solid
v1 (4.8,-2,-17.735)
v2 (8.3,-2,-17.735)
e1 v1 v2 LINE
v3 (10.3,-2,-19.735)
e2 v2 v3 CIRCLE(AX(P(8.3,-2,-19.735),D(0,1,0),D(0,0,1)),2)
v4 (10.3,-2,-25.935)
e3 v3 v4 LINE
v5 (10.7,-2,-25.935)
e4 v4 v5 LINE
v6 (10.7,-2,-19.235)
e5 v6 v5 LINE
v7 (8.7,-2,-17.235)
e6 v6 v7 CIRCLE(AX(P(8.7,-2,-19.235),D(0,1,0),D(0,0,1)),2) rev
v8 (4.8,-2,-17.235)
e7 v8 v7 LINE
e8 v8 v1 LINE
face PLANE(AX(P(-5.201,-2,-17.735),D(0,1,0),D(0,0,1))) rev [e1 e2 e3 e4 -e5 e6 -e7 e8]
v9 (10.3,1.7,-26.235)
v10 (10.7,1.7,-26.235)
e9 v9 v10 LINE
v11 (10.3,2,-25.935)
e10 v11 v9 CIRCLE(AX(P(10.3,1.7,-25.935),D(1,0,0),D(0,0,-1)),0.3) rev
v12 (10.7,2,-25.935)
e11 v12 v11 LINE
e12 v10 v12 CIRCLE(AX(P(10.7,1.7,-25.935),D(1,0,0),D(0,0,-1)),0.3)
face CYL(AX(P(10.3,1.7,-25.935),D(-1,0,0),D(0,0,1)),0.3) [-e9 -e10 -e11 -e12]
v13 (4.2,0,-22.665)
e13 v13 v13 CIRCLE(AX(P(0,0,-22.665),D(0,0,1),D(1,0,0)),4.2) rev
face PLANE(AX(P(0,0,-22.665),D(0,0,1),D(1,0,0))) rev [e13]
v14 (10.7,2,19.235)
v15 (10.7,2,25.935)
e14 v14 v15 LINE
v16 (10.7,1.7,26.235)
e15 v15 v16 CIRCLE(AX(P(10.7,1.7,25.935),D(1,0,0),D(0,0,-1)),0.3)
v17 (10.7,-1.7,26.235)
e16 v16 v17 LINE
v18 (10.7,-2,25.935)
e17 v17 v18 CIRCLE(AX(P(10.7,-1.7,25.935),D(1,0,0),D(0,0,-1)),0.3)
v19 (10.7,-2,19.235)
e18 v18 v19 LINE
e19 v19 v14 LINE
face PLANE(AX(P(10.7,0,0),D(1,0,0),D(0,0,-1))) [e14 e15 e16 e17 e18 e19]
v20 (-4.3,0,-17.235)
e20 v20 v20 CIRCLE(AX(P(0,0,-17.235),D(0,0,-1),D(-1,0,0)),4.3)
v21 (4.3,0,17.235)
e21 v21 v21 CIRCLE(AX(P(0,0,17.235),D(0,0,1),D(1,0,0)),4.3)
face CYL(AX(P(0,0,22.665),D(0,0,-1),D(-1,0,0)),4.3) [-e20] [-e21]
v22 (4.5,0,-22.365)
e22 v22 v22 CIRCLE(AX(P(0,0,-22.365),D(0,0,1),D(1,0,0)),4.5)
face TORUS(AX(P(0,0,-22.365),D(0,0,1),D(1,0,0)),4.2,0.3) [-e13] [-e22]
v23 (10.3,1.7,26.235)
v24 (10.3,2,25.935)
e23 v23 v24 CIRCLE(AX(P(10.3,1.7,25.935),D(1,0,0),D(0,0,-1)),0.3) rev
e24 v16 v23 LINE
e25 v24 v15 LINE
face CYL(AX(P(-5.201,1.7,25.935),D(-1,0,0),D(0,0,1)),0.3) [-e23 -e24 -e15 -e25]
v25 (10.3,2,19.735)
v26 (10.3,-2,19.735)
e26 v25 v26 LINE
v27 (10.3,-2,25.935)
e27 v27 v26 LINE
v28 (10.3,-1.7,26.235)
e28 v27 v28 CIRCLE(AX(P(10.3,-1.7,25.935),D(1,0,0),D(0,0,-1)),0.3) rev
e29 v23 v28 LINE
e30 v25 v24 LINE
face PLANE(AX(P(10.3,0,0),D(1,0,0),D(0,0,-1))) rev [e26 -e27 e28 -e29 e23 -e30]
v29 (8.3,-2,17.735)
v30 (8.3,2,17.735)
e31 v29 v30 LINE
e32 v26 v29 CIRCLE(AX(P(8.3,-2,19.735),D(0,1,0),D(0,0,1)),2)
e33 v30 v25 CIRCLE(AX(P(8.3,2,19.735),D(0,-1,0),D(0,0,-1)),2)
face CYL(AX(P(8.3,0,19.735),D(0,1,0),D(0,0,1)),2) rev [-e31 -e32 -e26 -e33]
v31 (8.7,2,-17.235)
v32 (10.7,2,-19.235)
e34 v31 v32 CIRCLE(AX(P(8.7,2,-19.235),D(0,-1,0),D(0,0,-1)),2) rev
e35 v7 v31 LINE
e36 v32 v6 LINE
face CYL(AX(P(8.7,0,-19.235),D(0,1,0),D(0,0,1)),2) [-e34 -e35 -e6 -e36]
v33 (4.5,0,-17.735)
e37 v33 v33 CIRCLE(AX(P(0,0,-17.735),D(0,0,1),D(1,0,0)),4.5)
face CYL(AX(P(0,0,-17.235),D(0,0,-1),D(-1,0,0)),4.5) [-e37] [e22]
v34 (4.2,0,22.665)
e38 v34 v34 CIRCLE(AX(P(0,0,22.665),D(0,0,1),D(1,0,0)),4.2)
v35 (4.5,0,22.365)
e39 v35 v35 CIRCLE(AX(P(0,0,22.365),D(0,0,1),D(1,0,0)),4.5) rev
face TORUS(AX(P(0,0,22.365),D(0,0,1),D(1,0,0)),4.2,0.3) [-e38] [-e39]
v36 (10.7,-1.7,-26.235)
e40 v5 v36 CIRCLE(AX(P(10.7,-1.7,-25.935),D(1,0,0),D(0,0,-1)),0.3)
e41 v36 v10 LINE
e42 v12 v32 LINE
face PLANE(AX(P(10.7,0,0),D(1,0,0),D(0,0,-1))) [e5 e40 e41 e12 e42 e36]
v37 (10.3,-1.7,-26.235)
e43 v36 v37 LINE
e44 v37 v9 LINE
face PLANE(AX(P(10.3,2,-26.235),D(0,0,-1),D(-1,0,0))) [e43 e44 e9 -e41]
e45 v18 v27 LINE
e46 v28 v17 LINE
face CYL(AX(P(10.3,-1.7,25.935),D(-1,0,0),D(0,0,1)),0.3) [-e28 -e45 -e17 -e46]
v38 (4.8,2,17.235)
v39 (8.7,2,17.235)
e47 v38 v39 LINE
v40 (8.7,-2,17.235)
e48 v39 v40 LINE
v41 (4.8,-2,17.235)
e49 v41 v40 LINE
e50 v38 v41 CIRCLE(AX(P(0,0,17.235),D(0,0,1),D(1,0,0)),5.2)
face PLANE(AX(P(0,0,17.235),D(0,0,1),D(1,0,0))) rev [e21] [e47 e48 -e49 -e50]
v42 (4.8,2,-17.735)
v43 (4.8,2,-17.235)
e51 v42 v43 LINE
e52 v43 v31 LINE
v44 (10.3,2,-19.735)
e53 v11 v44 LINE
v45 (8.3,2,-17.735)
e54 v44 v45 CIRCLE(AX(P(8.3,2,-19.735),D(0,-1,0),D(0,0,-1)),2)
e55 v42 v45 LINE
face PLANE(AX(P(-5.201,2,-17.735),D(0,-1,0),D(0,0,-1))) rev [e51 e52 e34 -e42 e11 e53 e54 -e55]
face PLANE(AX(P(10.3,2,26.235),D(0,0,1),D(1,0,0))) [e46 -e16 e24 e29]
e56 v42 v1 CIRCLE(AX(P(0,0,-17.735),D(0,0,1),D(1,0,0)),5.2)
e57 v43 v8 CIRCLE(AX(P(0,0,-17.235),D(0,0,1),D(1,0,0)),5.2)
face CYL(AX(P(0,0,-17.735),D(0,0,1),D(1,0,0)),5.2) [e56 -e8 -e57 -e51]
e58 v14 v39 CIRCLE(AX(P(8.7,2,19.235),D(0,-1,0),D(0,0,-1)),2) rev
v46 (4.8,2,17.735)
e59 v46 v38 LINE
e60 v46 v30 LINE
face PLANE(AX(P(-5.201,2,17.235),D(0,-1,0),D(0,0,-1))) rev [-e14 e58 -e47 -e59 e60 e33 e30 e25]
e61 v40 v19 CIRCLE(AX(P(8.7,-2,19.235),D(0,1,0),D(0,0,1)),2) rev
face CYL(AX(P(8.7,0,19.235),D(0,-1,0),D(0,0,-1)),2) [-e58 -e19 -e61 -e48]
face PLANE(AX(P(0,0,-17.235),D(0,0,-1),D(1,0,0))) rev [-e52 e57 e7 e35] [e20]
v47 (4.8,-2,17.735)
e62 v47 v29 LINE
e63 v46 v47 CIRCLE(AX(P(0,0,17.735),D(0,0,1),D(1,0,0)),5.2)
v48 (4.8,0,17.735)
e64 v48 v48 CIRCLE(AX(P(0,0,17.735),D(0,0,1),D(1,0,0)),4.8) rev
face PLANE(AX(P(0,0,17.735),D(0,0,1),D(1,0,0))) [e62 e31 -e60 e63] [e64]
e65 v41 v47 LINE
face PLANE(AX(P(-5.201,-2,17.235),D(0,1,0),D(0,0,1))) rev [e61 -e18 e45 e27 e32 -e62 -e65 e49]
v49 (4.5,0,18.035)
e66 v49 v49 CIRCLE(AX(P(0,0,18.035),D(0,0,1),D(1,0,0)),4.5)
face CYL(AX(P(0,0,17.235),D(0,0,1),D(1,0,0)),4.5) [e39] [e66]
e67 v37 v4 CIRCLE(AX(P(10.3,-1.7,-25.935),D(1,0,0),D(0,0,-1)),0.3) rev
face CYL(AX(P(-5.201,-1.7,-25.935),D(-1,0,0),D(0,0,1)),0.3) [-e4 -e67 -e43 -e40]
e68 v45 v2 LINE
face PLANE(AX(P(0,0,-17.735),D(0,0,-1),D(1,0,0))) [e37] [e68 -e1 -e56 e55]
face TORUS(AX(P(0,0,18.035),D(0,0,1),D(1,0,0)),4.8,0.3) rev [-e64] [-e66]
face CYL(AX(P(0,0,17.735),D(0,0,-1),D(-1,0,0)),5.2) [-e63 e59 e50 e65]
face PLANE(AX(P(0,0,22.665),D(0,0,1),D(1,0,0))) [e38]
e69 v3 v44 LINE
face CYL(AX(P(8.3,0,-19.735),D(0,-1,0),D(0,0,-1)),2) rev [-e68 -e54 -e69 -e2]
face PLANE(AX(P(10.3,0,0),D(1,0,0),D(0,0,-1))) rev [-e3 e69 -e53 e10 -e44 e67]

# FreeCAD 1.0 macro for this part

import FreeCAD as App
import Part
import Sketcher
from FreeCAD import Vector
Q = App.Units.Quantity


def edges_at(feature, points):
    """Names of the edges that pass closest to the given points."""
    edges = feature.Shape.Edges
    near = lambda p: min(range(len(edges)), key=lambda i: edges[i].distToShape(Part.Vertex(*p))[0])
    return sorted({f"Edge{near(p) + 1}" for p in points})


def add_polygon(sketch, points):
    """Adds a closed chain of lines whose ends are joined by coincident constraints."""
    first, n = sketch.GeometryCount, len(points)
    for a, b in zip(points, points[1:] + points[:1]):
        sketch.addGeometry(Part.LineSegment(App.Vector(*a, 0), App.Vector(*b, 0)), False)
    for i in range(n):
        sketch.addConstraint(Sketcher.Constraint("Coincident", first + i, 2, first + (i + 1) % n, 1))

doc = App.newDocument("Part")
params = doc.addObject("Spreadsheet::Sheet", "Params")
for row, (alias, value) in enumerate([
    ("sketch1_diameter", "8.6 mm"),
    ("pad1_length", "45.33 mm"),
    ("sketch2_diameter", "9 mm"),
    ("sketch2_diameter2", "8.6 mm"),
    ("pad2_length", "5.43 mm"),
    ("sketch3_diameter", "9 mm"),
    ("sketch3_diameter2", "10.4 mm"),
    ("pad3_length", "0.5 mm"),
    ("sketch4_width", "4 mm"),
    ("sketch4_height", "9 mm"),
    ("pad4_length", "0.4 mm"),
    ("sketch5_width", "4 mm"),
    ("sketch5_height", "0.5 mm"),
    ("pad5_length", "5.5 mm"),
    ("sketch6_width", "4 mm"),
    ("sketch6_height", "9 mm"),
    ("pad6_length", "0.4 mm"),
    ("sketch7_width", "4 mm"),
    ("sketch7_height", "0.5 mm"),
    ("pad7_length", "5.5 mm"),
    ("fillet_radius", "2 mm"),
    ("fillet2_radius", "0.3 mm"),
], start=1):
    params.set(f"A{row}", alias)
    params.set(f"B{row}", "=" + value)
    params.setAlias(f"B{row}", alias)

body = doc.addObject("PartDesign::Body", "Body")

# Sketch on XY plane
sketch1 = doc.addObject("Sketcher::SketchObject", "Sketch")
body.addObject(sketch1)
sketch1.AttachmentSupport = (doc.XY_Plane, [""])
sketch1.MapMode = "FlatFace"
sketch1.addGeometry(Part.Circle(Vector(0, 0, 0), Vector(0, 0, 1), 4.3), False)
sketch1.addConstraint([
    Sketcher.Constraint("Coincident", 0, 3, -1, 1),
    Sketcher.Constraint("Diameter", 0, Q("8.6 mm")),
])
sketch1.setExpression("Constraints[1]", "Params.sketch1_diameter")
pad1 = doc.addObject("PartDesign::Pad", "Pad")
body.addObject(pad1)
pad1.Profile = sketch1
pad1.setExpression("Length", "Params.pad1_length")
pad1.Midplane = True

# Sketch on XY plane
sketch2 = doc.addObject("Sketcher::SketchObject", "Sketch001")
body.addObject(sketch2)
sketch2.AttachmentSupport = (doc.XY_Plane, [""])
sketch2.MapMode = "FlatFace"
sketch2.AttachmentOffset = App.Placement(Vector(0, 0, 22.665), App.Rotation())
sketch2.addGeometry([
    Part.Circle(Vector(0, 0, 0), Vector(0, 0, 1), 4.5),
    Part.Circle(Vector(0, 0, 0), Vector(0, 0, 1), 4.3),
], False)
sketch2.addConstraint([
    Sketcher.Constraint("Coincident", 0, 3, -1, 1),
    Sketcher.Constraint("Coincident", 1, 3, -1, 1),
    Sketcher.Constraint("Diameter", 0, Q("9 mm")),
    Sketcher.Constraint("Diameter", 1, Q("8.6 mm")),
])
sketch2.setExpression("Constraints[2]", "Params.sketch2_diameter")
sketch2.setExpression("Constraints[3]", "Params.sketch2_diameter2")
pad2 = doc.addObject("PartDesign::Pad", "Pad001")
body.addObject(pad2)
pad2.Profile = sketch2
pad2.setExpression("Length", "Params.pad2_length")
pad2.Reversed = True

# Sketch on XY plane
sketch3 = doc.addObject("Sketcher::SketchObject", "Sketch002")
body.addObject(sketch3)
sketch3.AttachmentSupport = (doc.XY_Plane, [""])
sketch3.MapMode = "FlatFace"
sketch3.AttachmentOffset = App.Placement(Vector(0, 0, 17.235), App.Rotation())
sketch3.addGeometry([
    Part.Circle(Vector(0, 0, 0), Vector(0, 0, 1), 5.2),
    Part.Circle(Vector(0, 0, 0), Vector(0, 0, 1), 4.5),
], False)
sketch3.addConstraint([
    Sketcher.Constraint("Coincident", 0, 3, -1, 1),
    Sketcher.Constraint("Coincident", 1, 3, -1, 1),
    Sketcher.Constraint("Diameter", 1, Q("9 mm")),
    Sketcher.Constraint("Diameter", 0, Q("10.4 mm")),
])
sketch3.setExpression("Constraints[2]", "Params.sketch3_diameter")
sketch3.setExpression("Constraints[3]", "Params.sketch3_diameter2")
pad3 = doc.addObject("PartDesign::Pad", "Pad002")
body.addObject(pad3)
pad3.Profile = sketch3
pad3.setExpression("Length", "Params.pad3_length")
doc.recompute()

mirrored = doc.addObject("PartDesign::Mirrored", "Mirrored")
body.addObject(mirrored)
mirrored.Originals = [pad2, pad3]
mirrored.MirrorPlane = (doc.XY_Plane, [""])
body.Tip = mirrored
body2 = doc.addObject("PartDesign::Body", "Body001")

# Sketch on YZ plane
sketch4 = doc.addObject("Sketcher::SketchObject", "Sketch003")
body2.addObject(sketch4)
sketch4.AttachmentSupport = (doc.getObject("YZ_Plane001"), [""])
sketch4.MapMode = "FlatFace"
sketch4.AttachmentOffset = App.Placement(Vector(0, 0, 10.7), App.Rotation())
add_polygon(sketch4, [(2, -17.2), (-2, -17.2), (-2, -26.2), (2, -26.2)])  # lines 0-3
sketch4.addConstraint([
    Sketcher.Constraint("Horizontal", 0),
    Sketcher.Constraint("Vertical", 1),
    Sketcher.Constraint("Horizontal", 2),
    Sketcher.Constraint("Vertical", 3),
    Sketcher.Constraint("DistanceX", 0, 2, 0, 1, Q("4 mm")),
    Sketcher.Constraint("DistanceY", 1, 2, 1, 1, Q("9 mm")),
    Sketcher.Constraint("DistanceX", 0, 2, -1, 1, Q("2 mm")),
    Sketcher.Constraint("DistanceY", 0, 2, -1, 1, Q("17.235 mm")),
])
sketch4.setExpression("Constraints[8]", "Params.sketch4_width")
sketch4.setExpression("Constraints[9]", "Params.sketch4_height")
pad4 = doc.addObject("PartDesign::Pad", "Pad003")
body2.addObject(pad4)
pad4.Profile = sketch4
pad4.setExpression("Length", "Params.pad4_length")
pad4.Reversed = True
body.AllowCompound = True
doc.recompute()

boolean = doc.addObject("PartDesign::Boolean", "Boolean")
body.addObject(boolean)
boolean.Type = "Fuse"
boolean.addObjects([body2])

# Sketch on YZ plane
sketch5 = doc.addObject("Sketcher::SketchObject", "Sketch004")
body.addObject(sketch5)
sketch5.AttachmentSupport = (doc.YZ_Plane, [""])
sketch5.MapMode = "FlatFace"
sketch5.AttachmentOffset = App.Placement(Vector(0, 0, 10.3), App.Rotation())
add_polygon(sketch5, [(2, -17.7), (-2, -17.7), (-2, -17.2), (2, -17.2)])  # lines 0-3
sketch5.addConstraint([
    Sketcher.Constraint("Horizontal", 0),
    Sketcher.Constraint("Vertical", 1),
    Sketcher.Constraint("Horizontal", 2),
    Sketcher.Constraint("Vertical", 3),
    Sketcher.Constraint("DistanceX", 0, 2, 0, 1, Q("4 mm")),
    Sketcher.Constraint("DistanceY", 1, 1, 1, 2, Q("0.5 mm")),
    Sketcher.Constraint("DistanceX", 0, 2, -1, 1, Q("2 mm")),
    Sketcher.Constraint("DistanceY", 0, 2, -1, 1, Q("17.735 mm")),
])
sketch5.setExpression("Constraints[8]", "Params.sketch5_width")
sketch5.setExpression("Constraints[9]", "Params.sketch5_height")
pad5 = doc.addObject("PartDesign::Pad", "Pad004")
body.addObject(pad5)
pad5.Profile = sketch5
pad5.setExpression("Length", "Params.pad5_length")
pad5.Reversed = True
body3 = doc.addObject("PartDesign::Body", "Body002")

# Sketch on YZ plane
sketch6 = doc.addObject("Sketcher::SketchObject", "Sketch005")
body3.addObject(sketch6)
sketch6.AttachmentSupport = (doc.getObject("YZ_Plane002"), [""])
sketch6.MapMode = "FlatFace"
sketch6.AttachmentOffset = App.Placement(Vector(0, 0, 10.7), App.Rotation())
add_polygon(sketch6, [(2, 26.2), (-2, 26.2), (-2, 17.2), (2, 17.2)])  # lines 0-3
sketch6.addConstraint([
    Sketcher.Constraint("Horizontal", 0),
    Sketcher.Constraint("Vertical", 1),
    Sketcher.Constraint("Horizontal", 2),
    Sketcher.Constraint("Vertical", 3),
    Sketcher.Constraint("DistanceX", 0, 2, 0, 1, Q("4 mm")),
    Sketcher.Constraint("DistanceY", 1, 2, 1, 1, Q("9 mm")),
    Sketcher.Constraint("DistanceX", 0, 2, -1, 1, Q("2 mm")),
    Sketcher.Constraint("DistanceY", -1, 1, 0, 2, Q("26.235 mm")),
])
sketch6.setExpression("Constraints[8]", "Params.sketch6_width")
sketch6.setExpression("Constraints[9]", "Params.sketch6_height")
pad6 = doc.addObject("PartDesign::Pad", "Pad005")
body3.addObject(pad6)
pad6.Profile = sketch6
pad6.setExpression("Length", "Params.pad6_length")
pad6.Reversed = True
body.AllowCompound = True
doc.recompute()

boolean2 = doc.addObject("PartDesign::Boolean", "Boolean001")
body.addObject(boolean2)
boolean2.Type = "Fuse"
boolean2.addObjects([body3])

# Sketch on YZ plane
sketch7 = doc.addObject("Sketcher::SketchObject", "Sketch006")
body.addObject(sketch7)
sketch7.AttachmentSupport = (doc.YZ_Plane, [""])
sketch7.MapMode = "FlatFace"
sketch7.AttachmentOffset = App.Placement(Vector(0, 0, 10.3), App.Rotation())
add_polygon(sketch7, [(2, 17.2), (-2, 17.2), (-2, 17.7), (2, 17.7)])  # lines 0-3
sketch7.addConstraint([
    Sketcher.Constraint("Horizontal", 0),
    Sketcher.Constraint("Vertical", 1),
    Sketcher.Constraint("Horizontal", 2),
    Sketcher.Constraint("Vertical", 3),
    Sketcher.Constraint("DistanceX", 0, 2, 0, 1, Q("4 mm")),
    Sketcher.Constraint("DistanceY", 1, 1, 1, 2, Q("0.5 mm")),
    Sketcher.Constraint("DistanceX", 0, 2, -1, 1, Q("2 mm")),
    Sketcher.Constraint("DistanceY", -1, 1, 0, 2, Q("17.235 mm")),
])
sketch7.setExpression("Constraints[8]", "Params.sketch7_width")
sketch7.setExpression("Constraints[9]", "Params.sketch7_height")
pad7 = doc.addObject("PartDesign::Pad", "Pad006")
body.addObject(pad7)
pad7.Profile = sketch7
pad7.setExpression("Length", "Params.pad7_length")
pad7.Reversed = True
doc.recompute()

fillet = doc.addObject("PartDesign::Fillet", "Fillet")
body.addObject(fillet)
fillet.Base = (pad7, edges_at(pad7, [
    (10.3, 0, -17.735),
    (10.7, 0, -17.235),
    (10.3, 0, 17.735),
    (10.7, 0, 17.235),
]))
fillet.setExpression("Radius", "Params.fillet_radius")
doc.recompute()

fillet2 = doc.addObject("PartDesign::Fillet", "Fillet001")
body.addObject(fillet2)
fillet2.Base = (fillet, edges_at(fillet, [
    (-4.5, 0, 17.735),
    (-4.5, 0, -22.665),
    (10.5, 2, -26.235),
    (10.5, -2, -26.235),
    (10.5, -2, 26.235),
    (10.5, 2, 26.235),
    (-4.5, 0, 22.665),
]))
fillet2.setExpression("Radius", "Params.fillet2_radius")

doc.recompute()
